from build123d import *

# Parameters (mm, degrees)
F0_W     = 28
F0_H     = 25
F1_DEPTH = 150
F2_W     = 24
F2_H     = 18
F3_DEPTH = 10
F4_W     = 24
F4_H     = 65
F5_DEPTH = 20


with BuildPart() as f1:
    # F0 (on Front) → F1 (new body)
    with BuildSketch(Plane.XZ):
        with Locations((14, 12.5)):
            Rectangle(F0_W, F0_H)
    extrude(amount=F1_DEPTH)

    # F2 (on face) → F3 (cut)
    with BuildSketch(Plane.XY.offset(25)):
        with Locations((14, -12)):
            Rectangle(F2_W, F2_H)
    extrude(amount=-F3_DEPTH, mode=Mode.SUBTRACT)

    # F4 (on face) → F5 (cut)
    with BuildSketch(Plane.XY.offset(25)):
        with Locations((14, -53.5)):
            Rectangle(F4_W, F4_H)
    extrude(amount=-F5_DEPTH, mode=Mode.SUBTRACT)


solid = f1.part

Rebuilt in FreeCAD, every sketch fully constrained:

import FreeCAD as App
import Part
import Sketcher

V = App.Vector
Q = App.Units.Quantity


def add_polygon(sketch, points):
    """Adds a closed chain of lines whose ends are joined by coincident constraints."""
    first, n = sketch.GeometryCount, len(points)
    for a, b in zip(points, points[1:] + points[:1]):
        sketch.addGeometry(Part.LineSegment(App.Vector(*a, 0), App.Vector(*b, 0)), False)
    for i in range(n):
        sketch.addConstraint(Sketcher.Constraint("Coincident", first + i, 2, first + (i + 1) % n, 1))

doc = App.newDocument("Part")
params = doc.addObject("Spreadsheet::Sheet", "Params")
for row, (alias, value) in enumerate([
    ("sketch1_width", "28 mm"),
    ("sketch1_height", "25 mm"),
    ("pad1_length", "150 mm"),
    ("sketch2_width", "24 mm"),
    ("sketch2_height", "18 mm"),
    ("pocket1_length", "10 mm"),
    ("sketch3_width", "24 mm"),
    ("sketch3_height", "65 mm"),
    ("pocket2_length", "20 mm"),
], start=1):
    params.set(f"A{row}", alias)
    params.set(f"B{row}", "=" + value)
    params.setAlias(f"B{row}", alias)

body = doc.addObject("PartDesign::Body", "Body")

# Sketch on XZ plane
sketch1 = body.newObject("Sketcher::SketchObject", "Sketch")
sketch1.AttachmentSupport = (doc.getObject("XZ_Plane"), [""])
sketch1.MapMode = "FlatFace"
add_polygon(sketch1, [(0, 25), (0, 0), (28, 0), (28, 25)])  # lines 0-3
sketch1.addConstraint(Sketcher.Constraint("Vertical", 0))
sketch1.addConstraint(Sketcher.Constraint("Horizontal", 1))
sketch1.addConstraint(Sketcher.Constraint("Vertical", 2))
sketch1.addConstraint(Sketcher.Constraint("Horizontal", 3))
sketch1.addConstraint(Sketcher.Constraint("Coincident", 0, 2, -1, 1))
sketch1.addConstraint(Sketcher.Constraint("DistanceX", 1, 1, 1, 2, Q("28 mm")))
sketch1.addConstraint(Sketcher.Constraint("DistanceY", 0, 2, 0, 1, Q("25 mm")))
sketch1.setExpression("Constraints[9]", "Params.sketch1_width")
sketch1.setExpression("Constraints[10]", "Params.sketch1_height")
pad1 = body.newObject("PartDesign::Pad", "Pad")
pad1.Profile = sketch1
pad1.setExpression("Length", "Params.pad1_length")

# Sketch on XY plane
sketch2 = body.newObject("Sketcher::SketchObject", "Sketch001")
sketch2.AttachmentSupport = (doc.getObject("XY_Plane"), [""])
sketch2.MapMode = "FlatFace"
sketch2.AttachmentOffset = App.Placement(V(0, 0, 25), App.Rotation())
add_polygon(sketch2, [(2, -3), (2, -21), (26, -21), (26, -3)])  # lines 0-3
sketch2.addConstraint(Sketcher.Constraint("Vertical", 0))
sketch2.addConstraint(Sketcher.Constraint("Horizontal", 1))
sketch2.addConstraint(Sketcher.Constraint("Vertical", 2))
sketch2.addConstraint(Sketcher.Constraint("Horizontal", 3))
sketch2.addConstraint(Sketcher.Constraint("DistanceX", 1, 1, 1, 2, Q("24 mm")))
sketch2.addConstraint(Sketcher.Constraint("DistanceY", 0, 2, 0, 1, Q("18 mm")))
sketch2.addConstraint(Sketcher.Constraint("DistanceX", -1, 1, 0, 2, Q("2 mm")))
sketch2.addConstraint(Sketcher.Constraint("DistanceY", 0, 2, -1, 1, Q("21 mm")))
sketch2.setExpression("Constraints[8]", "Params.sketch2_width")
sketch2.setExpression("Constraints[9]", "Params.sketch2_height")
pocket1 = body.newObject("PartDesign::Pocket", "Pocket")
pocket1.Profile = sketch2
pocket1.setExpression("Length", "Params.pocket1_length")

# Sketch on XY plane
sketch3 = body.newObject("Sketcher::SketchObject", "Sketch002")
sketch3.AttachmentSupport = (doc.getObject("XY_Plane"), [""])
sketch3.MapMode = "FlatFace"
sketch3.AttachmentOffset = App.Placement(V(0, 0, 25), App.Rotation())
add_polygon(sketch3, [(2, -21), (2, -86), (26, -86), (26, -21)])  # lines 0-3
sketch3.addConstraint(Sketcher.Constraint("Vertical", 0))
sketch3.addConstraint(Sketcher.Constraint("Horizontal", 1))
sketch3.addConstraint(Sketcher.Constraint("Vertical", 2))
sketch3.addConstraint(Sketcher.Constraint("Horizontal", 3))
sketch3.addConstraint(Sketcher.Constraint("DistanceX", 1, 1, 1, 2, Q("24 mm")))
sketch3.addConstraint(Sketcher.Constraint("DistanceY", 0, 2, 0, 1, Q("65 mm")))
sketch3.addConstraint(Sketcher.Constraint("DistanceX", -1, 1, 0, 2, Q("2 mm")))
sketch3.addConstraint(Sketcher.Constraint("DistanceY", 0, 2, -1, 1, Q("86 mm")))
sketch3.setExpression("Constraints[8]", "Params.sketch3_width")
sketch3.setExpression("Constraints[9]", "Params.sketch3_height")
pocket2 = body.newObject("PartDesign::Pocket", "Pocket001")
pocket2.Profile = sketch3
pocket2.setExpression("Length", "Params.pocket2_length")

doc.recompute()
